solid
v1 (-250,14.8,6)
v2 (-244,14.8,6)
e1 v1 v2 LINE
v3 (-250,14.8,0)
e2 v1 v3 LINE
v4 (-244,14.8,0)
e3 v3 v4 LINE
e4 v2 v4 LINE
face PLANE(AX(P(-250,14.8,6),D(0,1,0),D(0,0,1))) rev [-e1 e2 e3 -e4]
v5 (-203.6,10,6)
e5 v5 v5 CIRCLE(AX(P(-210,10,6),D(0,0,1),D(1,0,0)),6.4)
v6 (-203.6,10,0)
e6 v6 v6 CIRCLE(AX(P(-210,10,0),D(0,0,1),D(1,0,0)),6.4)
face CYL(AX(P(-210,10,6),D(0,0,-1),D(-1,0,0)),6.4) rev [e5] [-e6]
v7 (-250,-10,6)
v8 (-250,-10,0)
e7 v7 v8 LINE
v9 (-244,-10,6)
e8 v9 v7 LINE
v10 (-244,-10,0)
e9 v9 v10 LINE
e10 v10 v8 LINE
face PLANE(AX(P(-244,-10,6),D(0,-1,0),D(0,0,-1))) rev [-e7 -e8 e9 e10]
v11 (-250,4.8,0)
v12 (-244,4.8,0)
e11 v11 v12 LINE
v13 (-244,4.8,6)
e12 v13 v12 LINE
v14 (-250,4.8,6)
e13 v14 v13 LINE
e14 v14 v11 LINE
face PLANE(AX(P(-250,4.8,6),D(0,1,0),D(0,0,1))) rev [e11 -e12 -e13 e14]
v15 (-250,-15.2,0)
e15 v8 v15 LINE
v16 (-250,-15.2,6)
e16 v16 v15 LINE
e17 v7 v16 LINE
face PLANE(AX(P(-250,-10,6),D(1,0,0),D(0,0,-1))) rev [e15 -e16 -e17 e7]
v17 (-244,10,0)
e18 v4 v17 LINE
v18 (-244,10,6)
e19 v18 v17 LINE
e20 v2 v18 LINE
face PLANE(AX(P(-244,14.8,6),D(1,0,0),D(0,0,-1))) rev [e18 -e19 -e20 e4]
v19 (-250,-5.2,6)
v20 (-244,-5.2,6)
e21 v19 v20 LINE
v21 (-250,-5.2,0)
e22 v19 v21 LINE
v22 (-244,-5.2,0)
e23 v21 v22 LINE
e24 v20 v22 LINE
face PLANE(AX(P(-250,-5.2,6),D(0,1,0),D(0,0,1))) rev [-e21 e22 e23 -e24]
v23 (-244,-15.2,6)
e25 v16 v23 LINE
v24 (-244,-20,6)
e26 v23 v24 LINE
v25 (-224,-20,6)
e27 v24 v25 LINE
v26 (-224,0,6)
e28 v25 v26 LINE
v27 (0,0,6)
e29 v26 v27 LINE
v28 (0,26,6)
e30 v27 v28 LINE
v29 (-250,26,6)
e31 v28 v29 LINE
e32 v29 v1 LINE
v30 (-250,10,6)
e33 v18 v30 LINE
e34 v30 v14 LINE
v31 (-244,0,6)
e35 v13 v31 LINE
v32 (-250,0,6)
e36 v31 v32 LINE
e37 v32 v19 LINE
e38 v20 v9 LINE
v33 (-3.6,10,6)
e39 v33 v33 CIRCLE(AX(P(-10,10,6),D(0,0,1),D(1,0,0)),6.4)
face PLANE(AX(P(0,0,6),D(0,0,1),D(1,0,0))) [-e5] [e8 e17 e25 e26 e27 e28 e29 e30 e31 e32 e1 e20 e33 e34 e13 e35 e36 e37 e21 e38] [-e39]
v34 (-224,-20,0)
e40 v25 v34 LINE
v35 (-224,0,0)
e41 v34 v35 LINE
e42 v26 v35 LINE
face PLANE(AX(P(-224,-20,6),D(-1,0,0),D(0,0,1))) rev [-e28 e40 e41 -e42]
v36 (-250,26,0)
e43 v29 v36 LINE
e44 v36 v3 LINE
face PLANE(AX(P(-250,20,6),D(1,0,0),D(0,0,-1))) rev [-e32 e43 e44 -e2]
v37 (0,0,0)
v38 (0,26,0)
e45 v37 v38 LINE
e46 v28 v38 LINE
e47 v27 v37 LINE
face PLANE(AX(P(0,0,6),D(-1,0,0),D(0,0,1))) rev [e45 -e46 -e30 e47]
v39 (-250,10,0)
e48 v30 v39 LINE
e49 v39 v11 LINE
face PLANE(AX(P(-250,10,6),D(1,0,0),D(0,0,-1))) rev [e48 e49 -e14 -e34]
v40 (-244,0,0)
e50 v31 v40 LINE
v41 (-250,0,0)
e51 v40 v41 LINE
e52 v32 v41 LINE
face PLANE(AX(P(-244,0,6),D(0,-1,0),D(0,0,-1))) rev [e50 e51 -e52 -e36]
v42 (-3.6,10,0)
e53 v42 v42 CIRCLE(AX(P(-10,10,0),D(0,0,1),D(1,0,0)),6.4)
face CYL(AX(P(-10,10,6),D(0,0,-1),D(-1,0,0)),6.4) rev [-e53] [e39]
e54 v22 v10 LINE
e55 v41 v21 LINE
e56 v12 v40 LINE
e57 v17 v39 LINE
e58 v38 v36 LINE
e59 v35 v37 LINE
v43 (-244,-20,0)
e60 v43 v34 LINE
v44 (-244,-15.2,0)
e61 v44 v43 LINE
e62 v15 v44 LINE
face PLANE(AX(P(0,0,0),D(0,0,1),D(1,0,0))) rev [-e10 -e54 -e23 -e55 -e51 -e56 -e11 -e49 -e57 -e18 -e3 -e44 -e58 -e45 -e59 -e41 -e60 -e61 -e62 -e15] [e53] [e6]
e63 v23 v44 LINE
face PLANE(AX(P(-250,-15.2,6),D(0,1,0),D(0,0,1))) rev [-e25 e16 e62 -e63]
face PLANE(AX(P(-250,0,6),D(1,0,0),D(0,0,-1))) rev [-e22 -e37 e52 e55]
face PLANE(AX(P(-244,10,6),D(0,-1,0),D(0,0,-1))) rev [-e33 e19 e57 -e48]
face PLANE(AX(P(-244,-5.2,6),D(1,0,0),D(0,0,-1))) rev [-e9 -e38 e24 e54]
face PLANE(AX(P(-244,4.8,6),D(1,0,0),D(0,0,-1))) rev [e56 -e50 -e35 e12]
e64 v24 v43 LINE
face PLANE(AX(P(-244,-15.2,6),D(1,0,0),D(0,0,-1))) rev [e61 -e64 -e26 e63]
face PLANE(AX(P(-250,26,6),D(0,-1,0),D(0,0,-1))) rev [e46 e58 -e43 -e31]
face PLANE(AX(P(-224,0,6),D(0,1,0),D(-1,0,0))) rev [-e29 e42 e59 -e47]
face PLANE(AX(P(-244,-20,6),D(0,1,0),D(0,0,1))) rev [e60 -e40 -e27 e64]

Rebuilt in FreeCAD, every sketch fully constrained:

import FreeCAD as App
import Part
import Sketcher

V = App.Vector

doc = App.newDocument("Part")
params = doc.addObject("Spreadsheet::Sheet", "Params")
for row, (alias, value) in enumerate([
    ("sketch1_diameter", "12.8 mm"),
    ("sketch1_width", "250 mm"),
    ("sketch1_width2", "6 mm"),
    ("sketch1_width3", "20 mm"),
    ("sketch1_height", "26 mm"),
    ("pad1_length", "6 mm"),
], start=1):
    params.set(f"A{row}", alias)
    params.set(f"B{row}", "=" + value)
    params.setAlias(f"B{row}", alias)

body = doc.addObject("PartDesign::Body", "Body")

sketch1 = body.newObject("Sketcher::SketchObject", "Sketch")
sketch1.AttachmentSupport = (doc.getObject("XY_Plane"), [""])
sketch1.MapMode = "FlatFace"
sketch1.addGeometry([
    Part.LineSegment(V(0, 0, 0), V(0, 26, 0)),
    Part.LineSegment(V(0, 26, 0), V(-250, 26, 0)),
    Part.LineSegment(V(-250, 26, 0), V(-250, 14.8, 0)),
    Part.LineSegment(V(-250, 14.8, 0), V(-244, 14.8, 0)),
    Part.LineSegment(V(-244, 14.8, 0), V(-244, 10, 0)),
    Part.LineSegment(V(-244, 10, 0), V(-250, 10, 0)),
    Part.LineSegment(V(-250, 10, 0), V(-250, 4.8, 0)),
    Part.LineSegment(V(-250, 4.8, 0), V(-244, 4.8, 0)),
    Part.LineSegment(V(-244, 4.8, 0), V(-244, 0, 0)),
    Part.LineSegment(V(-244, 0, 0), V(-250, 0, 0)),
    Part.LineSegment(V(-250, 0, 0), V(-250, -5.2, 0)),
    Part.LineSegment(V(-250, -5.2, 0), V(-244, -5.2, 0)),
    Part.LineSegment(V(-244, -5.2, 0), V(-244, -10, 0)),
    Part.LineSegment(V(-244, -10, 0), V(-250, -10, 0)),
    Part.LineSegment(V(-250, -10, 0), V(-250, -15.2, 0)),
    Part.LineSegment(V(-250, -15.2, 0), V(-244, -15.2, 0)),
    Part.LineSegment(V(-244, -15.2, 0), V(-244, -20, 0)),
    Part.LineSegment(V(-244, -20, 0), V(-224, -20, 0)),
    Part.LineSegment(V(-224, -20, 0), V(-224, 0, 0)),
    Part.LineSegment(V(-224, 0, 0), V(0, 0, 0)),
    Part.Circle(V(-210, 10, 0), V(0, 0, 1), 6.4),
    Part.Circle(V(-10, 10, 0), V(0, 0, 1), 6.4),
], False)
sketch1.addConstraint([
    Sketcher.Constraint("Coincident", 0, 2, 1, 1),
    Sketcher.Constraint("Coincident", 1, 2, 2, 1),
    Sketcher.Constraint("Coincident", 2, 2, 3, 1),
    Sketcher.Constraint("Coincident", 3, 2, 4, 1),
    Sketcher.Constraint("Coincident", 4, 2, 5, 1),
    Sketcher.Constraint("Coincident", 5, 2, 6, 1),
    Sketcher.Constraint("Coincident", 6, 2, 7, 1),
    Sketcher.Constraint("Coincident", 7, 2, 8, 1),
    Sketcher.Constraint("Coincident", 8, 2, 9, 1),
    Sketcher.Constraint("Coincident", 9, 2, 10, 1),
    Sketcher.Constraint("Coincident", 10, 2, 11, 1),
    Sketcher.Constraint("Coincident", 11, 2, 12, 1),
    Sketcher.Constraint("Coincident", 12, 2, 13, 1),
    Sketcher.Constraint("Coincident", 13, 2, 14, 1),
    Sketcher.Constraint("Coincident", 14, 2, 15, 1),
    Sketcher.Constraint("Coincident", 15, 2, 16, 1),
    Sketcher.Constraint("Coincident", 16, 2, 17, 1),
    Sketcher.Constraint("Coincident", 17, 2, 18, 1),
    Sketcher.Constraint("Coincident", 18, 2, 19, 1),
    Sketcher.Constraint("Coincident", 19, 2, 0, 1),
    Sketcher.Constraint("Vertical", 0),
    Sketcher.Constraint("Horizontal", 1),
    Sketcher.Constraint("Vertical", 2),
    Sketcher.Constraint("Horizontal", 3),
    Sketcher.Constraint("Vertical", 4),
    Sketcher.Constraint("Horizontal", 5),
    Sketcher.Constraint("Vertical", 6),
    Sketcher.Constraint("Horizontal", 7),
    Sketcher.Constraint("Vertical", 8),
    Sketcher.Constraint("Horizontal", 9),
    Sketcher.Constraint("Vertical", 10),
    Sketcher.Constraint("Horizontal", 11),
    Sketcher.Constraint("Vertical", 12),
    Sketcher.Constraint("Horizontal", 13),
    Sketcher.Constraint("Vertical", 14),
    Sketcher.Constraint("Horizontal", 15),
    Sketcher.Constraint("Vertical", 16),
    Sketcher.Constraint("Horizontal", 17),
    Sketcher.Constraint("Vertical", 18),
    Sketcher.Constraint("Horizontal", 19),
    Sketcher.Constraint("Coincident", 19, 2, -1, 1),
    Sketcher.Constraint("Equal", 20, 21),
    Sketcher.Constraint("Symmetric", 4, 2, 12, 2, -1),
    Sketcher.Constraint("PointOnObject", 8, 2, -1),
    Sketcher.Constraint("Horizontal", 20, 3, 21, 3),
    Sketcher.Constraint("Horizontal", 21, 3, 4, 2),
    Sketcher.Constraint("Vertical", 2, 2, 5, 2),
    Sketcher.Constraint("Vertical", 4, 2, 7, 2),
    Sketcher.Constraint("Vertical", 6, 2, 9, 2),
    Sketcher.Constraint("Vertical", 10, 2, 13, 2),
    Sketcher.Constraint("Vertical", 12, 2, 15, 2),
    Sketcher.Constraint("Equal", 4, 8),
    Sketcher.Constraint("Equal", 6, 10),
    Sketcher.Constraint("Equal", 10, 14),
    Sketcher.Constraint("Equal", 12, 16),
    Sketcher.Constraint("Equal", 17, 18),
    Sketcher.Constraint("Diameter", 20, 12.8),
    Sketcher.Constraint("DistanceX", 1, 2, 1, 1, 250.0),
    Sketcher.Constraint("DistanceX", 3, 1, 3, 2, 6.0),
    Sketcher.Constraint("DistanceX", 17, 1, 17, 2, 20.0),
    Sketcher.Constraint("DistanceY", 0, 1, 0, 2, 26.0),
    Sketcher.Constraint("DistanceY", 2, 2, 2, 1, 11.2),
    Sketcher.Constraint("DistanceX", 20, 3, -1, 1, 210.0),
    Sketcher.Constraint("DistanceX", 21, 3, -1, 1, 10.0),
])
sketch1.setExpression("Constraints[56]", "Params.sketch1_diameter")
sketch1.setExpression("Constraints[57]", "Params.sketch1_width")
sketch1.setExpression("Constraints[58]", "Params.sketch1_width2")
sketch1.setExpression("Constraints[59]", "Params.sketch1_width3")
sketch1.setExpression("Constraints[60]", "Params.sketch1_height")
pad1 = body.newObject("PartDesign::Pad", "Pad")
pad1.Profile = sketch1
pad1.setExpression("Length", "Params.pad1_length")

doc.recompute()
